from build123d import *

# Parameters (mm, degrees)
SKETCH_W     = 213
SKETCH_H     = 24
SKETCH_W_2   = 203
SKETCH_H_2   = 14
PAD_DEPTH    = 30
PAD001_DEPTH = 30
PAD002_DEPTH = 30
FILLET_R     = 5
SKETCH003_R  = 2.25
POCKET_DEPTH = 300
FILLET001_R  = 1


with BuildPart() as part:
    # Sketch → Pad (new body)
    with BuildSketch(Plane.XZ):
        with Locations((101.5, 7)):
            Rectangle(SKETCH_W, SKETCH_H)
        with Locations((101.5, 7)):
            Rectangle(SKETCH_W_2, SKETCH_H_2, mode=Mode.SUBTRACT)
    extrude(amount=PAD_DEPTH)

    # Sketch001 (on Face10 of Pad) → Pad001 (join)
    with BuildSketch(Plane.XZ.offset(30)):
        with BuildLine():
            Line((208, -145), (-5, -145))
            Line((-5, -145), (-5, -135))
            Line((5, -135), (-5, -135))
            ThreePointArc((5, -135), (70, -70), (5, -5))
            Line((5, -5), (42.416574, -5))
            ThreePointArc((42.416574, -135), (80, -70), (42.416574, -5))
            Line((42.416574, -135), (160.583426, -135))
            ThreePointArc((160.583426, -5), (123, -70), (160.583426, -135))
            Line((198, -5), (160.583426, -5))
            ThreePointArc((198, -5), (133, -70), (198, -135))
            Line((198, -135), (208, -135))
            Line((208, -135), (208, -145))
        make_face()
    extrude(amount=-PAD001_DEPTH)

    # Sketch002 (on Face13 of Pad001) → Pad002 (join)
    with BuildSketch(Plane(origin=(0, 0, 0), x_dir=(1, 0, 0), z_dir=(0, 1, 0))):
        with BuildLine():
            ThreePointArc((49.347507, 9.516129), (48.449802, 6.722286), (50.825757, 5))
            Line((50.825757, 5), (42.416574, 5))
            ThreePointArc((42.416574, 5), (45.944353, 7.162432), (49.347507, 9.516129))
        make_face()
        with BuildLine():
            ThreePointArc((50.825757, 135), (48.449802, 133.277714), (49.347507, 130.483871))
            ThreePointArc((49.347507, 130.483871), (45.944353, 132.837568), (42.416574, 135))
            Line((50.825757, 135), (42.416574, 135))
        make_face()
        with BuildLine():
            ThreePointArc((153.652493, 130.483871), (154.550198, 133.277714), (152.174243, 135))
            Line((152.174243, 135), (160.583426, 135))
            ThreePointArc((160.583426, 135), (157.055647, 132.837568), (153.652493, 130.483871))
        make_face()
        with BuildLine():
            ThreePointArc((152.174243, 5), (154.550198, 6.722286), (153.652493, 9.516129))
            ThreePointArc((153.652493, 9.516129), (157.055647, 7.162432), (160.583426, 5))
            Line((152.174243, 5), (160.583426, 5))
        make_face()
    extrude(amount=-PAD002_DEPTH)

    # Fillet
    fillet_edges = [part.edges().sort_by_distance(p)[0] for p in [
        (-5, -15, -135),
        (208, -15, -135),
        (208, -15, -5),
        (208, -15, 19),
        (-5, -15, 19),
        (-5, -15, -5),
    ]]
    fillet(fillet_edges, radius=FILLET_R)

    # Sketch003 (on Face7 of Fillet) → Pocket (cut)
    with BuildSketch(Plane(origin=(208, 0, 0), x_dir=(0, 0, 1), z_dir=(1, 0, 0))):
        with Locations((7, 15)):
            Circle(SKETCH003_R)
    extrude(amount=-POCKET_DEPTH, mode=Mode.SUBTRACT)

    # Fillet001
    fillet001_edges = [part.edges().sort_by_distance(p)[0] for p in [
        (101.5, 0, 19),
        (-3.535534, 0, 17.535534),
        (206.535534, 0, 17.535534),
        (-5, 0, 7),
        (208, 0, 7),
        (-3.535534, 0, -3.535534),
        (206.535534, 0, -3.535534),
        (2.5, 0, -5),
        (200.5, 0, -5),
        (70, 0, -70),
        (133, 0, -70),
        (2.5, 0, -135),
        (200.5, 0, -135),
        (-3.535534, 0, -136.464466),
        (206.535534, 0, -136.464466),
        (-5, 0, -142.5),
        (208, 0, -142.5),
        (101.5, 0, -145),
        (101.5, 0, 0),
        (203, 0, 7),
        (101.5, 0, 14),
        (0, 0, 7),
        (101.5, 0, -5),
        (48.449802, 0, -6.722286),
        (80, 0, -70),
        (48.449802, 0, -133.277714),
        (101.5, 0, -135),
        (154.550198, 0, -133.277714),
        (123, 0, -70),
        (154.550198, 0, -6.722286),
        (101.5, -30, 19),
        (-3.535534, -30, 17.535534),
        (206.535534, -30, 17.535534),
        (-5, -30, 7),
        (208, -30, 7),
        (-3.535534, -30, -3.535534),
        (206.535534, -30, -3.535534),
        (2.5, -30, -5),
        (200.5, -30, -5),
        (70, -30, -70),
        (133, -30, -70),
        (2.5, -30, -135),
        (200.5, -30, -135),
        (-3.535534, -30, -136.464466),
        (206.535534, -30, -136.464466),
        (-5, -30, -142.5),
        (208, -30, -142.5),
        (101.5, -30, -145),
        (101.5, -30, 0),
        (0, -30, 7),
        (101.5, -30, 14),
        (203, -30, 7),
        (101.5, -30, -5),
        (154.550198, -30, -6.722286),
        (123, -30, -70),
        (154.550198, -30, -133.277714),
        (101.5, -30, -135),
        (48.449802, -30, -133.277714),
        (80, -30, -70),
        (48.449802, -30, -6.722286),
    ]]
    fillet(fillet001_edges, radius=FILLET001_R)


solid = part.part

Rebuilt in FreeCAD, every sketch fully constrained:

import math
import FreeCAD as App
import Part
import Sketcher
from FreeCAD import Vector


def edges_at(feature, points):
    """Names of the edges that pass closest to the given points."""
    edges = feature.Shape.Edges
    near = lambda p: min(range(len(edges)), key=lambda i: edges[i].distToShape(Part.Vertex(*p))[0])
    return sorted({f"Edge{near(p) + 1}" for p in points})


def add_polygon(sketch, points):
    """Adds a closed chain of lines whose ends are joined by coincident constraints."""
    first, n = sketch.GeometryCount, len(points)
    for a, b in zip(points, points[1:] + points[:1]):
        sketch.addGeometry(Part.LineSegment(App.Vector(*a, 0), App.Vector(*b, 0)), False)
    for i in range(n):
        sketch.addConstraint(Sketcher.Constraint("Coincident", first + i, 2, first + (i + 1) % n, 1))

doc = App.newDocument("Part")
body = doc.addObject("PartDesign::Body", "Body")

# Sketch on XZ plane
sketch1 = doc.addObject("Sketcher::SketchObject", "Sketch")
body.addObject(sketch1)
sketch1.AttachmentSupport = (doc.XZ_Plane, [""])
sketch1.MapMode = "FlatFace"
add_polygon(sketch1, [(-5, 19), (-5, -5), (208, -5), (208, 19)])  # lines 0-3
add_polygon(sketch1, [(203, 0), (0, 0), (0, 14), (203, 14)])  # lines 4-7
sketch1.addConstraint([
    Sketcher.Constraint("Vertical", 0),
    Sketcher.Constraint("Horizontal", 1),
    Sketcher.Constraint("Vertical", 2),
    Sketcher.Constraint("Horizontal", 3),
    Sketcher.Constraint("Horizontal", 4),
    Sketcher.Constraint("Vertical", 5),
    Sketcher.Constraint("Horizontal", 6),
    Sketcher.Constraint("Vertical", 7),
    Sketcher.Constraint("Coincident", 4, 2, -1, 1),
    Sketcher.Constraint("DistanceX", 1, 1, 1, 2, 213.0),
    Sketcher.Constraint("DistanceX", 4, 2, 4, 1, 203.0),
    Sketcher.Constraint("DistanceY", 0, 2, 0, 1, 24.0),
    Sketcher.Constraint("DistanceY", 5, 1, 5, 2, 14.0),
    Sketcher.Constraint("DistanceX", 0, 2, -1, 1, 5.0),
    Sketcher.Constraint("DistanceY", 0, 2, -1, 1, 5.0),
])
pad1 = doc.addObject("PartDesign::Pad", "Pad")
body.addObject(pad1)
pad1.Profile = sketch1
pad1.Length = 30

# Sketch on XZ plane
sketch2 = doc.addObject("Sketcher::SketchObject", "Sketch001")
body.addObject(sketch2)
sketch2.AttachmentSupport = (doc.XZ_Plane, [""])
sketch2.MapMode = "FlatFace"
sketch2.AttachmentOffset = App.Placement(Vector(0, 0, 30), App.Rotation())
sketch2.addGeometry([
    Part.LineSegment(Vector(-5, -145, 0), Vector(208, -145, 0)),  # 0
    Part.LineSegment(Vector(208, -145, 0), Vector(208, -135, 0)),  # 1
    Part.LineSegment(Vector(208, -135, 0), Vector(198, -135, 0)),  # 2
    Part.ArcOfCircle(Part.Circle(Vector(198, -70, 0), Vector(0, 0, 1), 65), math.radians(90), math.radians(270)),  # 3
    Part.LineSegment(Vector(198, -5, 0), Vector(161, -5, 0)),  # 4
    Part.ArcOfCircle(Part.Circle(Vector(198, -70, 0), Vector(0, 0, 1), 75), math.radians(120), math.radians(240)),  # 5
    Part.LineSegment(Vector(161, -135, 0), Vector(42, -135, 0)),  # 6
    Part.ArcOfCircle(Part.Circle(Vector(5, -70, 0), Vector(0, 0, 1), 75), math.radians(-60), math.radians(60)),  # 7
    Part.LineSegment(Vector(42, -5, 0), Vector(5, -5, 0)),  # 8
    Part.ArcOfCircle(Part.Circle(Vector(5, -70, 0), Vector(0, 0, 1), 65), math.radians(-90), math.radians(90)),  # 9
    Part.LineSegment(Vector(5, -135, 0), Vector(-5, -135, 0)),  # 10
    Part.LineSegment(Vector(-5, -135, 0), Vector(-5, -145, 0)),  # 11
], False)
sketch2.addConstraint([
    Sketcher.Constraint("Coincident", 0, 2, 1, 1),
    Sketcher.Constraint("Coincident", 1, 2, 2, 1),
    Sketcher.Constraint("Tangent", 2, 2, 3, 2),
    Sketcher.Constraint("Tangent", 3, 1, 4, 1),
    Sketcher.Constraint("Coincident", 4, 2, 5, 1),
    Sketcher.Constraint("Coincident", 5, 2, 6, 1),
    Sketcher.Constraint("Coincident", 6, 2, 7, 1),
    Sketcher.Constraint("Coincident", 7, 2, 8, 1),
    Sketcher.Constraint("Tangent", 8, 2, 9, 2),
    Sketcher.Constraint("Tangent", 9, 1, 10, 1),
    Sketcher.Constraint("Coincident", 10, 2, 11, 1),
    Sketcher.Constraint("Coincident", 11, 2, 0, 1),
    Sketcher.Constraint("Horizontal", 0),
    Sketcher.Constraint("Vertical", 1),
    Sketcher.Constraint("Horizontal", 2),
    Sketcher.Constraint("Horizontal", 4),
    Sketcher.Constraint("Horizontal", 6),
    Sketcher.Constraint("Horizontal", 8),
    Sketcher.Constraint("Horizontal", 10),
    Sketcher.Constraint("Vertical", 11),
    Sketcher.Constraint("Coincident", 5, 3, 3, 3),
    Sketcher.Constraint("Coincident", 9, 3, 7, 3),
    Sketcher.Constraint("Equal", 5, 7),
    Sketcher.Constraint("Equal", 3, 9),
    Sketcher.Constraint("Horizontal", 5, 3, 7, 3),
    Sketcher.Constraint("Horizontal", 2, 2, 5, 2),
    Sketcher.Constraint("Equal", 2, 10),
    Sketcher.Constraint("Equal", 10, 1),
    Sketcher.Constraint("Radius", 3, 65.0),
    Sketcher.Constraint("Radius", 5, 75.0),
    Sketcher.Constraint("DistanceX", 0, 1, 0, 2, 213.0),
    Sketcher.Constraint("DistanceX", 2, 2, 2, 1, 10.0),
    Sketcher.Constraint("DistanceX", -1, 1, 3, 3, 198.0),
    Sketcher.Constraint("DistanceY", 3, 3, -1, 1, 70.0),
])
pad2 = doc.addObject("PartDesign::Pad", "Pad001")
body.addObject(pad2)
pad2.Profile = sketch2
pad2.Length = 30
pad2.Reversed = True

# Sketch on XZ plane
sketch3 = doc.addObject("Sketcher::SketchObject", "Sketch002")
body.addObject(sketch3)
sketch3.AttachmentSupport = (doc.XZ_Plane, [""])
sketch3.MapMode = "FlatFace"
sketch3.addGeometry([
    Part.ArcOfCircle(Part.Circle(Vector(50.8, -7.5, 0), Vector(0, 0, 1), 2.5), math.radians(90), math.radians(234)),  # 0
    Part.ArcOfCircle(Part.Circle(Vector(5, -70, 0), Vector(0, 0, 1), 75), math.radians(53.75), math.radians(60.07)),  # 1
    Part.LineSegment(Vector(42.4, -5, 0), Vector(50.8, -5, 0)),  # 2
    Part.ArcOfCircle(Part.Circle(Vector(50.8, -132.5, 0), Vector(0, 0, 1), 2.5), math.radians(126), math.radians(270)),  # 3
    Part.LineSegment(Vector(50.8, -135, 0), Vector(42.4, -135, 0)),  # 4
    Part.ArcOfCircle(Part.Circle(Vector(5, -70, 0), Vector(0, 0, 1), 75), math.radians(-60.07), math.radians(-53.75)),  # 5
    Part.ArcOfCircle(Part.Circle(Vector(152.2, -132.5, 0), Vector(0, 0, 1), 2.5), math.radians(-90), math.radians(54)),  # 6
    Part.ArcOfCircle(Part.Circle(Vector(198, -70, 0), Vector(0, 0, 1), 75), math.radians(-126.25), math.radians(-119.93)),  # 7
    Part.LineSegment(Vector(160.6, -135, 0), Vector(152.2, -135, 0)),  # 8
    Part.ArcOfCircle(Part.Circle(Vector(152.2, -7.5, 0), Vector(0, 0, 1), 2.5), math.radians(-54), math.radians(90)),  # 9
    Part.LineSegment(Vector(152.2, -5, 0), Vector(160.6, -5, 0)),  # 10
    Part.ArcOfCircle(Part.Circle(Vector(198, -70, 0), Vector(0, 0, 1), 75), math.radians(119.93), math.radians(126.25)),  # 11
], False)
sketch3.addConstraint([
    Sketcher.Constraint("Tangent", 0, 2, 1, 1),
    Sketcher.Constraint("Coincident", 1, 2, 2, 1),
    Sketcher.Constraint("Tangent", 2, 2, 0, 1),
    Sketcher.Constraint("Tangent", 3, 2, 4, 1),
    Sketcher.Constraint("Coincident", 4, 2, 5, 1),
    Sketcher.Constraint("Tangent", 5, 2, 3, 1),
    Sketcher.Constraint("Tangent", 6, 2, 7, 1),
    Sketcher.Constraint("Coincident", 7, 2, 8, 1),
    Sketcher.Constraint("Tangent", 8, 2, 6, 1),
    Sketcher.Constraint("Tangent", 9, 2, 10, 1),
    Sketcher.Constraint("Coincident", 10, 2, 11, 1),
    Sketcher.Constraint("Tangent", 11, 2, 9, 1),
    Sketcher.Constraint("Horizontal", 2),
    Sketcher.Constraint("Horizontal", 4),
    Sketcher.Constraint("Horizontal", 8),
    Sketcher.Constraint("Horizontal", 10),
    Sketcher.Constraint("Equal", 0, 3),
    Sketcher.Constraint("Equal", 1, 5),
    Sketcher.Constraint("Equal", 3, 6),
    Sketcher.Constraint("Equal", 5, 7),
    Sketcher.Constraint("Equal", 6, 9),
    Sketcher.Constraint("Equal", 7, 11),
    Sketcher.Constraint("Horizontal", 3, 3, 6, 3),
    Sketcher.Constraint("Horizontal", 5, 3, 7, 3),
    Sketcher.Constraint("Horizontal", 0, 3, 9, 3),
    Sketcher.Constraint("Horizontal", 1, 3, 11, 3),
    Sketcher.Constraint("Vertical", 0, 3, 3, 3),
    Sketcher.Constraint("Vertical", 1, 3, 5, 3),
    Sketcher.Constraint("Vertical", 6, 3, 9, 3),
    Sketcher.Constraint("Radius", 0, 2.5),
    Sketcher.Constraint("DistanceY", 1, 2, -1, 1, 5.0),
    Sketcher.Constraint("DistanceY", 3, 2, -1, 1, 135.0),
    Sketcher.Constraint("Radius", 1, 75.000107),
    Sketcher.Constraint("DistanceX", 1, 3, 6, 3, 147.174301),
    Sketcher.Constraint("DistanceX", 2, 1, 2, 2, 8.409183),
    Sketcher.Constraint("DistanceX", -1, 1, 0, 3, 50.825757),
])
pad3 = doc.addObject("PartDesign::Pad", "Pad002")
body.addObject(pad3)
pad3.Profile = sketch3
pad3.Length = 30
doc.recompute()

fillet = doc.addObject("PartDesign::Fillet", "Fillet")
body.addObject(fillet)
fillet.Base = (pad3, edges_at(pad3, [
    (-5, -15, -135),
    (208, -15, -135),
    (208, -15, -5),
    (208, -15, 19),
    (-5, -15, 19),
    (-5, -15, -5),
]))
fillet.Radius = 5

# Sketch on YZ plane
sketch4 = doc.addObject("Sketcher::SketchObject", "Sketch003")
body.addObject(sketch4)
sketch4.AttachmentSupport = (doc.YZ_Plane, [""])
sketch4.MapMode = "FlatFace"
sketch4.AttachmentOffset = App.Placement(Vector(0, 0, 208), App.Rotation())
sketch4.addGeometry(Part.Circle(Vector(-15, 7, 0), Vector(0, 0, 1), 2.2), False)
sketch4.addConstraint([
    Sketcher.Constraint("Diameter", 0, 4.5),
    Sketcher.Constraint("DistanceX", 0, 3, -1, 1, 15.0),
    Sketcher.Constraint("DistanceY", -1, 1, 0, 3, 7.0),
])
pocket1 = doc.addObject("PartDesign::Pocket", "Pocket")
body.addObject(pocket1)
pocket1.Profile = sketch4
pocket1.Length = 300
doc.recompute()

fillet2 = doc.addObject("PartDesign::Fillet", "Fillet001")
body.addObject(fillet2)
fillet2.Base = (pocket1, edges_at(pocket1, [
    (101.5, 0, 19),
    (-3.536, 0, 17.536),
    (206.536, 0, 17.536),
    (-5, 0, 7),
    (208, 0, 7),
    (-3.536, 0, -3.536),
    (206.536, 0, -3.536),
    (2.5, 0, -5),
    (200.5, 0, -5),
    (70, 0, -70),
    (133, 0, -70),
    (2.5, 0, -135),
    (200.5, 0, -135),
    (-3.536, 0, -136.464),
    (206.536, 0, -136.464),
    (-5, 0, -142.5),
    (208, 0, -142.5),
    (101.5, 0, -145),
    (101.5, 0, 0),
    (203, 0, 7),
    (101.5, 0, 14),
    (0, 0, 7),
    (101.5, 0, -5),
    (48.45, 0, -6.722),
    (80, 0, -70),
    (48.45, 0, -133.278),
    (101.5, 0, -135),
    (154.55, 0, -133.278),
    (123, 0, -70),
    (154.55, 0, -6.722),
    (101.5, -30, 19),
    (-3.536, -30, 17.536),
    (206.536, -30, 17.536),
    (-5, -30, 7),
    (208, -30, 7),
    (-3.536, -30, -3.536),
    (206.536, -30, -3.536),
    (2.5, -30, -5),
    (200.5, -30, -5),
    (70, -30, -70),
    (133, -30, -70),
    (2.5, -30, -135),
    (200.5, -30, -135),
    (-3.536, -30, -136.464),
    (206.536, -30, -136.464),
    (-5, -30, -142.5),
    (208, -30, -142.5),
    (101.5, -30, -145),
    (101.5, -30, 0),
    (0, -30, 7),
    (101.5, -30, 14),
    (203, -30, 7),
    (101.5, -30, -5),
    (154.55, -30, -6.722),
    (123, -30, -70),
    (154.55, -30, -133.278),
    (101.5, -30, -135),
    (48.45, -30, -133.278),
    (80, -30, -70),
    (48.45, -30, -6.722),
]))
fillet2.Radius = 1

doc.recompute()
